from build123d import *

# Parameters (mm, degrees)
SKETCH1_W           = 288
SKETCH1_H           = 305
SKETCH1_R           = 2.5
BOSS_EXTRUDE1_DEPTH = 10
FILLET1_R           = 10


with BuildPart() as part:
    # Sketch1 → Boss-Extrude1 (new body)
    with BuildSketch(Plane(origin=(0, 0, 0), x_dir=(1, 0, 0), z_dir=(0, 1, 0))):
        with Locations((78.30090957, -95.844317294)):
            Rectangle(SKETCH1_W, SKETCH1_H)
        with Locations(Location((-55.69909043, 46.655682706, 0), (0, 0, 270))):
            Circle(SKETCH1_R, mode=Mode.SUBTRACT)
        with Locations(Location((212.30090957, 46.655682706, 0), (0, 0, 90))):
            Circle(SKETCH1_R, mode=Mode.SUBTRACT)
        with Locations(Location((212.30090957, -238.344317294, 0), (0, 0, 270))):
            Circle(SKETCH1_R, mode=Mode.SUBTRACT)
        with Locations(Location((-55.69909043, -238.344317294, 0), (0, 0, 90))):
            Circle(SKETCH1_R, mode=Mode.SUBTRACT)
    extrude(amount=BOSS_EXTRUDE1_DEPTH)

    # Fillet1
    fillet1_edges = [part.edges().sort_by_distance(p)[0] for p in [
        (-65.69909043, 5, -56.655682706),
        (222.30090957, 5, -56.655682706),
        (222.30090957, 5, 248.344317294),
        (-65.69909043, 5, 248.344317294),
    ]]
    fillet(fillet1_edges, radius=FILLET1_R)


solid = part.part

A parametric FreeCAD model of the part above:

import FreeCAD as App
import Part
import Sketcher
Q = App.Units.Quantity


def edges_at(feature, points):
    """Names of the edges that pass closest to the given points."""
    edges = feature.Shape.Edges
    near = lambda p: min(range(len(edges)), key=lambda i: edges[i].distToShape(Part.Vertex(*p))[0])
    return sorted({f"Edge{near(p) + 1}" for p in points})

doc = App.newDocument("Part")
body = doc.addObject("PartDesign::Body", "Body")

# Sketch on XZ plane
sketch1 = doc.addObject("Sketcher::SketchObject", "Sketch")
body.addObject(sketch1)
sketch1.AttachmentSupport = (doc.XZ_Plane, [""])
sketch1.MapMode = "FlatFace"
sketch1.addGeometry([
    Part.LineSegment(App.Vector(-65.7, -56.7, 0), App.Vector(-65.7, 248.3, 0)),  # 0
    Part.LineSegment(App.Vector(-65.7, 248.3, 0), App.Vector(222.3, 248.3, 0)),  # 1
    Part.LineSegment(App.Vector(222.3, 248.3, 0), App.Vector(222.3, -56.7, 0)),  # 2
    Part.LineSegment(App.Vector(222.3, -56.7, 0), App.Vector(-65.7, -56.7, 0)),  # 3
    Part.Circle(App.Vector(-55.7, 238.3, 0), App.Vector(0, 0, 1), 2.5),  # 4
    Part.Circle(App.Vector(212.3, 238.3, 0), App.Vector(0, 0, 1), 2.5),  # 5
    Part.Circle(App.Vector(-55.7, -46.7, 0), App.Vector(0, 0, 1), 2.5),  # 6
    Part.Circle(App.Vector(212.3, -46.7, 0), App.Vector(0, 0, 1), 2.5),  # 7
], False)
sketch1.addConstraint([
    Sketcher.Constraint("Coincident", 0, 2, 1, 1),
    Sketcher.Constraint("Coincident", 1, 2, 2, 1),
    Sketcher.Constraint("Coincident", 2, 2, 3, 1),
    Sketcher.Constraint("Coincident", 3, 2, 0, 1),
    Sketcher.Constraint("Vertical", 0),
    Sketcher.Constraint("Horizontal", 1),
    Sketcher.Constraint("Vertical", 2),
    Sketcher.Constraint("Horizontal", 3),
    Sketcher.Constraint("Equal", 4, 5),
    Sketcher.Constraint("Equal", 5, 6),
    Sketcher.Constraint("Equal", 6, 7),
    Sketcher.Constraint("Horizontal", 4, 3, 5, 3),
    Sketcher.Constraint("Horizontal", 6, 3, 7, 3),
    Sketcher.Constraint("Vertical", 4, 3, 6, 3),
    Sketcher.Constraint("Vertical", 5, 3, 7, 3),
    Sketcher.Constraint("Diameter", 4, Q("5 mm")),
    Sketcher.Constraint("DistanceX", 1, 1, 1, 2, Q("288 mm")),
    Sketcher.Constraint("DistanceY", 0, 1, 0, 2, Q("305 mm")),
    Sketcher.Constraint("DistanceX", 4, 3, 5, 3, Q("268 mm")),
    Sketcher.Constraint("DistanceY", 6, 3, 4, 3, Q("285 mm")),
    Sketcher.Constraint("DistanceX", 0, 2, 4, 3, Q("10 mm")),
    Sketcher.Constraint("DistanceY", 4, 3, 0, 2, Q("10 mm")),
    Sketcher.Constraint("DistanceX", 4, 3, -1, 1, Q("55.69909 mm")),
    Sketcher.Constraint("DistanceY", -1, 1, 4, 3, Q("238.344317 mm")),
])
pad1 = doc.addObject("PartDesign::Pad", "Pad")
body.addObject(pad1)
pad1.Profile = sketch1
pad1.Length = 10
pad1.Reversed = True
doc.recompute()

fillet = doc.addObject("PartDesign::Fillet", "Fillet")
body.addObject(fillet)
fillet.Base = (pad1, edges_at(pad1, [
    (-65.699, 5, -56.656),
    (222.301, 5, -56.656),
    (222.301, 5, 248.344),
    (-65.699, 5, 248.344),
]))
fillet.Radius = 10

doc.recompute()
